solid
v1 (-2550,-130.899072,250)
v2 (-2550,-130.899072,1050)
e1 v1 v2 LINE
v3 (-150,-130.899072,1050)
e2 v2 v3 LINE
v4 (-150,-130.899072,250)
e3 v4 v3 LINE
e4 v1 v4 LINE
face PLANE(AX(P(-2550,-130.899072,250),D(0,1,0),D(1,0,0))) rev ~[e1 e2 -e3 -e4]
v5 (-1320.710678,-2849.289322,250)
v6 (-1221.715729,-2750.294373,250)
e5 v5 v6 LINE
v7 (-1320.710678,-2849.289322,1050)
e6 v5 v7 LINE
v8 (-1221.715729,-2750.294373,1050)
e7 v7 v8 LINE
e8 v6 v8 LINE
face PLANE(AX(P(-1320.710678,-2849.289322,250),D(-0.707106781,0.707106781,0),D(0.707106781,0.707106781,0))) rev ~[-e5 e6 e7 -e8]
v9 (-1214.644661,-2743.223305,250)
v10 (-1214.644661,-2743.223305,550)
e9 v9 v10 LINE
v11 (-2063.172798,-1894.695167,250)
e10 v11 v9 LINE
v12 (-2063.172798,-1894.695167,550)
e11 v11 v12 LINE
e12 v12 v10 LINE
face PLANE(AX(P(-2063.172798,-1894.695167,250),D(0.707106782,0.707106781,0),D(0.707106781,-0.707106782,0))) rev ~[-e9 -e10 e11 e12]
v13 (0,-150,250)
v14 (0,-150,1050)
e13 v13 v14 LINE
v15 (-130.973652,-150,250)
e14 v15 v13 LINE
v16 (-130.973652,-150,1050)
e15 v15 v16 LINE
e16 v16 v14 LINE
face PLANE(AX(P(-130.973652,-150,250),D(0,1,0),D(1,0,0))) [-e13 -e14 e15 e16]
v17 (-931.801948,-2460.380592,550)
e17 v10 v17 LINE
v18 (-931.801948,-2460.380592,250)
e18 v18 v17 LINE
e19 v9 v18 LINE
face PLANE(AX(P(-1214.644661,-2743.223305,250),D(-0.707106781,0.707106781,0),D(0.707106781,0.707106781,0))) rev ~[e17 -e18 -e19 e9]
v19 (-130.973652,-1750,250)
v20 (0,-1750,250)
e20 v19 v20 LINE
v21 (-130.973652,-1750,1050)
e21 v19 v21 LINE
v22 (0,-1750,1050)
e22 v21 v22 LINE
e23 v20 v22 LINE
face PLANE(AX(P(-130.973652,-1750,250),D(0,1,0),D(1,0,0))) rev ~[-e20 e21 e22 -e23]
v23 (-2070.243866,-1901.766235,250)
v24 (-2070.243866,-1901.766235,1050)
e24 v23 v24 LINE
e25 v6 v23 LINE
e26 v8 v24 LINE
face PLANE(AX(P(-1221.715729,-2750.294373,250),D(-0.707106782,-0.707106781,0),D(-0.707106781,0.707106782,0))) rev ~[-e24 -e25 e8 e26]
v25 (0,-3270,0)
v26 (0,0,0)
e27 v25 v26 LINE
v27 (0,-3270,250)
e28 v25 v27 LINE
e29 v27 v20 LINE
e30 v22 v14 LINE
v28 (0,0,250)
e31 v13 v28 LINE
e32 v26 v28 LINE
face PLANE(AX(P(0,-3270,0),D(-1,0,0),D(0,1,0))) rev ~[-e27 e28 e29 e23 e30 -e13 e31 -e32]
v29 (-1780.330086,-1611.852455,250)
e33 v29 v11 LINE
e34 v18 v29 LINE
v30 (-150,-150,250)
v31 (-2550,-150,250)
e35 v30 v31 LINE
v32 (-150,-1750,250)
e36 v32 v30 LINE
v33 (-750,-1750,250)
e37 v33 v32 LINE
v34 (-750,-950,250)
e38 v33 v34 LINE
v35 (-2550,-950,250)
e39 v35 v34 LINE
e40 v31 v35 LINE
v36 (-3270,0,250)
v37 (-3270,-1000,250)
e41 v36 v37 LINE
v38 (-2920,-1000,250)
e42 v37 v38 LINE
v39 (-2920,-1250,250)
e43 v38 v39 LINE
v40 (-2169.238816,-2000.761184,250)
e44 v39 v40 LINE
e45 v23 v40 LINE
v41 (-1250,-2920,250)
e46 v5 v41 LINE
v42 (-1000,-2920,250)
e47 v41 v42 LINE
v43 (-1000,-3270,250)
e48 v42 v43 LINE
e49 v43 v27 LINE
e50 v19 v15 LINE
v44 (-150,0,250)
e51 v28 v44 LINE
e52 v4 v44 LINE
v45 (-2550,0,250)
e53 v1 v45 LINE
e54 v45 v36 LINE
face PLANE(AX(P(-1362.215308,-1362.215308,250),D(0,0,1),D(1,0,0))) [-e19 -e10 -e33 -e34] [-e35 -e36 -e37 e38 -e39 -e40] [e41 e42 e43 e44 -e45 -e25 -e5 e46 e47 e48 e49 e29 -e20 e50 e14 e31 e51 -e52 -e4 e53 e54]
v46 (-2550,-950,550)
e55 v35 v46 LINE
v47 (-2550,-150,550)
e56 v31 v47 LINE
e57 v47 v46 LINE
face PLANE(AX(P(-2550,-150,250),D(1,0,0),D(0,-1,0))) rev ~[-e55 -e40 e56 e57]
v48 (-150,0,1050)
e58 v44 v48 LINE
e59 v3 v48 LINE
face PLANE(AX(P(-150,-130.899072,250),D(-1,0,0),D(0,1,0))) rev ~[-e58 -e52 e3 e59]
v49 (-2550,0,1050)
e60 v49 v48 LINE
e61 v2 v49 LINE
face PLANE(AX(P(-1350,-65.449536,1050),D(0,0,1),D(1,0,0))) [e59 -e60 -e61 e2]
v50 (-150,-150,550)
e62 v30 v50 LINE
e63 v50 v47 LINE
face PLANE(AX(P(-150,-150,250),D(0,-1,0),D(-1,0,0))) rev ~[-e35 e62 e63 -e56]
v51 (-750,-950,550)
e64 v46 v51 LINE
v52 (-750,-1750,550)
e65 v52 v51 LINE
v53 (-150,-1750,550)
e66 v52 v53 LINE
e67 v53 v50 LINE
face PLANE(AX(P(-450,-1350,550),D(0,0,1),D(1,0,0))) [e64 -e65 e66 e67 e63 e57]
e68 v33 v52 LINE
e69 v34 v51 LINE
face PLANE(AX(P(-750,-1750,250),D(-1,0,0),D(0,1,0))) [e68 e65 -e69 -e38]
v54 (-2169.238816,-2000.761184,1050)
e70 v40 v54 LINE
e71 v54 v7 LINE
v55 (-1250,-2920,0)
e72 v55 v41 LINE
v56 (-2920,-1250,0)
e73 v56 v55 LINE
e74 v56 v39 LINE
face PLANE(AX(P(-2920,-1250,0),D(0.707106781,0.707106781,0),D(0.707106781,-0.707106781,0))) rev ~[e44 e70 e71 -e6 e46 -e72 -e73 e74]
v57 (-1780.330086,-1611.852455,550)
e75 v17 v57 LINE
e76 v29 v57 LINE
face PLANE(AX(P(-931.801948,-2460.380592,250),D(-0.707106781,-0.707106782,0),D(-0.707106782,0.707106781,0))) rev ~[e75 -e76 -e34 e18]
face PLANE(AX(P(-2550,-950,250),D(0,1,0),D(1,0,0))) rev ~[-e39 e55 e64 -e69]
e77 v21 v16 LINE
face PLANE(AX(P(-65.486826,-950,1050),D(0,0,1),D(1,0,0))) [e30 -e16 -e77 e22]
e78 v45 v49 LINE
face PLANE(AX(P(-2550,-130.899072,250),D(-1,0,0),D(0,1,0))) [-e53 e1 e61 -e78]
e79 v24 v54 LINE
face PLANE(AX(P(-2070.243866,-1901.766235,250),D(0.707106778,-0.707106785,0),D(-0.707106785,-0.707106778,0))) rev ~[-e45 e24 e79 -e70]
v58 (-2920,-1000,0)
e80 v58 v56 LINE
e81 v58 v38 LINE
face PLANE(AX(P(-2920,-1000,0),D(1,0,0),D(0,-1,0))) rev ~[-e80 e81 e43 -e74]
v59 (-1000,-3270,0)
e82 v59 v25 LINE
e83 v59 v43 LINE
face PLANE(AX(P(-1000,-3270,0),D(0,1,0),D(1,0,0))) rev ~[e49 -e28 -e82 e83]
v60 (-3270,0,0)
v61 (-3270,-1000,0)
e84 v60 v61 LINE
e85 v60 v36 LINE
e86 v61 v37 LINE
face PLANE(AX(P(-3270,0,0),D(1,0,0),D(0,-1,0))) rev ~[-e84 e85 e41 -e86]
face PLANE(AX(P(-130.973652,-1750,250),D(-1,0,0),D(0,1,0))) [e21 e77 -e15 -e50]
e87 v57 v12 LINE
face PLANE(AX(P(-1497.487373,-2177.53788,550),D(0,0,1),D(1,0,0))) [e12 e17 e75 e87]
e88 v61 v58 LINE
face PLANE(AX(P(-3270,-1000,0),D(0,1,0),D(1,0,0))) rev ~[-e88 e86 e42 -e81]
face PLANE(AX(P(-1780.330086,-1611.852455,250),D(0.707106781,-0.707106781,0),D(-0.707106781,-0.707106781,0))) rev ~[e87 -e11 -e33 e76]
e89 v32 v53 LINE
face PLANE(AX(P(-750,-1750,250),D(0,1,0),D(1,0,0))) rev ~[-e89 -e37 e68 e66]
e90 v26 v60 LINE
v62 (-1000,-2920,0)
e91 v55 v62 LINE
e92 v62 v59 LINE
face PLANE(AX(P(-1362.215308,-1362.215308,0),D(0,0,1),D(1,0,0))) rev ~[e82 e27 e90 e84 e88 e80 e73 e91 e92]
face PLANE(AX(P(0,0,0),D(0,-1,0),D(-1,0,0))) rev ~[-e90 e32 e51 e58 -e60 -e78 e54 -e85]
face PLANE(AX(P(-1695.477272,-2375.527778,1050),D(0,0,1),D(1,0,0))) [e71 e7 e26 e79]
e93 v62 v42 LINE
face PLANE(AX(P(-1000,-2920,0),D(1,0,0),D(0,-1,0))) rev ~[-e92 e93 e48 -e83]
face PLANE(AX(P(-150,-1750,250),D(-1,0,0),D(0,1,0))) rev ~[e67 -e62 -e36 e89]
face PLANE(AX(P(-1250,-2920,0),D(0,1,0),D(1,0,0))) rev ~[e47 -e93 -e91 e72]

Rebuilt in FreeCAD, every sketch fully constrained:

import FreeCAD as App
import Part
import Sketcher
Q = App.Units.Quantity


def add_polygon(sketch, points):
    """Adds a closed chain of lines whose ends are joined by coincident constraints."""
    first, n = sketch.GeometryCount, len(points)
    for a, b in zip(points, points[1:] + points[:1]):
        sketch.addGeometry(Part.LineSegment(App.Vector(*a, 0), App.Vector(*b, 0)), False)
    for i in range(n):
        sketch.addConstraint(Sketcher.Constraint("Coincident", first + i, 2, first + (i + 1) % n, 1))

doc = App.newDocument("Part")
body = doc.addObject("PartDesign::Body", "Body")

# Sketch on XY plane
sketch1 = body.newObject("Sketcher::SketchObject", "Sketch")
sketch1.AttachmentSupport = (doc.getObject("XY_Plane"), [""])
sketch1.MapMode = "FlatFace"
add_polygon(sketch1, [(0, -3270), (0, 0), (-3270, 0), (-3270, -1000), (-2920, -1000), (-2920, -1250), (-1250, -2920), (-1000, -2920), (-1000, -3270)])  # lines 0-8
sketch1.addConstraint(Sketcher.Constraint("Vertical", 0))
sketch1.addConstraint(Sketcher.Constraint("Horizontal", 1))
sketch1.addConstraint(Sketcher.Constraint("Vertical", 2))
sketch1.addConstraint(Sketcher.Constraint("Horizontal", 3))
sketch1.addConstraint(Sketcher.Constraint("Vertical", 4))
sketch1.addConstraint(Sketcher.Constraint("Horizontal", 6))
sketch1.addConstraint(Sketcher.Constraint("Vertical", 7))
sketch1.addConstraint(Sketcher.Constraint("Horizontal", 8))
sketch1.addConstraint(Sketcher.Constraint("Coincident", 0, 2, -1, 1))
sketch1.addConstraint(Sketcher.Constraint("Equal", 1, 0))
sketch1.addConstraint(Sketcher.Constraint("Equal", 8, 2))
sketch1.addConstraint(Sketcher.Constraint("Equal", 6, 4))
sketch1.addConstraint(Sketcher.Constraint("Equal", 3, 7))
sketch1.addConstraint(Sketcher.Constraint("DistanceX", 1, 2, 1, 1, Q("3270 mm")))
sketch1.addConstraint(Sketcher.Constraint("DistanceX", 3, 1, 3, 2, Q("350 mm")))
sketch1.addConstraint(Sketcher.Constraint("DistanceX", 6, 1, 6, 2, Q("250 mm")))
sketch1.addConstraint(Sketcher.Constraint("DistanceX", 8, 1, 8, 2, Q("1000 mm")))
pad1 = body.newObject("PartDesign::Pad", "Pad")
pad1.Profile = sketch1
pad1.Length = 250

# Sketch on XY plane
sketch2 = body.newObject("Sketcher::SketchObject", "Sketch001")
sketch2.AttachmentSupport = (doc.getObject("XY_Plane"), [""])
sketch2.MapMode = "FlatFace"
sketch2.AttachmentOffset = App.Placement(App.Vector(0, 0, 250), App.Rotation())
add_polygon(sketch2, [(-932, -2460), (-1780, -1612), (-2063, -1895), (-1215, -2743)])  # lines 0-3
add_polygon(sketch2, [(-750, -950), (-750, -1750), (-150, -1750), (-150, -150), (-2550, -150), (-2550, -950)])  # lines 4-9
sketch2.addConstraint(Sketcher.Constraint("Vertical", 4))
sketch2.addConstraint(Sketcher.Constraint("Horizontal", 5))
sketch2.addConstraint(Sketcher.Constraint("Vertical", 6))
sketch2.addConstraint(Sketcher.Constraint("Horizontal", 7))
sketch2.addConstraint(Sketcher.Constraint("Vertical", 8))
sketch2.addConstraint(Sketcher.Constraint("Horizontal", 9))
sketch2.addConstraint(Sketcher.Constraint("Perpendicular", 0, 1))
sketch2.addConstraint(Sketcher.Constraint("Perpendicular", 1, 2))
sketch2.addConstraint(Sketcher.Constraint("Perpendicular", 2, 3))
sketch2.addConstraint(Sketcher.Constraint("Equal", 4, 8))
sketch2.addConstraint(Sketcher.Constraint("DistanceX", 5, 1, 5, 2, Q("600 mm")))
sketch2.addConstraint(Sketcher.Constraint("DistanceX", 7, 2, 7, 1, Q("2400 mm")))
sketch2.addConstraint(Sketcher.Constraint("DistanceY", 4, 2, 4, 1, Q("800 mm")))
sketch2.addConstraint(Sketcher.Constraint("Angle", 0, Q("135 deg")))
sketch2.addConstraint(Sketcher.Constraint("Distance", 0, Q("1200 mm")))
sketch2.addConstraint(Sketcher.Constraint("Distance", 1, Q("399.999999 mm")))
sketch2.addConstraint(Sketcher.Constraint("DistanceX", 4, 2, -1, 1, Q("750 mm")))
sketch2.addConstraint(Sketcher.Constraint("DistanceY", 4, 2, -1, 1, Q("1750 mm")))
sketch2.addConstraint(Sketcher.Constraint("DistanceX", 1, 2, -1, 1, Q("2063.172798 mm")))
sketch2.addConstraint(Sketcher.Constraint("DistanceY", 3, 2, -1, 1, Q("2460.380592 mm")))
pad2 = body.newObject("PartDesign::Pad", "Pad001")
pad2.Profile = sketch2
pad2.Length = 300

# Sketch on XY plane
sketch3 = body.newObject("Sketcher::SketchObject", "Sketch002")
sketch3.AttachmentSupport = (doc.getObject("XY_Plane"), [""])
sketch3.MapMode = "FlatFace"
sketch3.AttachmentOffset = App.Placement(App.Vector(0, 0, 250), App.Rotation())
add_polygon(sketch3, [(-2550, 0), (-2550, -131), (-150, -131), (-150, 0)])  # lines 0-3
add_polygon(sketch3, [(-131, -150), (-131, -1750), (0, -1750), (0, -150)])  # lines 4-7
add_polygon(sketch3, [(-1222, -2750), (-2070, -1902), (-2169, -2001), (-1321, -2849)])  # lines 8-11
sketch3.addConstraint(Sketcher.Constraint("Vertical", 0))
sketch3.addConstraint(Sketcher.Constraint("Horizontal", 1))
sketch3.addConstraint(Sketcher.Constraint("Vertical", 2))
sketch3.addConstraint(Sketcher.Constraint("Horizontal", 3))
sketch3.addConstraint(Sketcher.Constraint("Vertical", 4))
sketch3.addConstraint(Sketcher.Constraint("Horizontal", 5))
sketch3.addConstraint(Sketcher.Constraint("Vertical", 6))
sketch3.addConstraint(Sketcher.Constraint("Horizontal", 7))
sketch3.addConstraint(Sketcher.Constraint("PointOnObject", 2, 2, -1))
sketch3.addConstraint(Sketcher.Constraint("PointOnObject", 5, 2, -2))
sketch3.addConstraint(Sketcher.Constraint("Perpendicular", 8, 9))
sketch3.addConstraint(Sketcher.Constraint("Perpendicular", 9, 10))
sketch3.addConstraint(Sketcher.Constraint("Perpendicular", 10, 11))
sketch3.addConstraint(Sketcher.Constraint("DistanceX", 1, 1, 1, 2, Q("2400 mm")))
sketch3.addConstraint(Sketcher.Constraint("DistanceY", 4, 2, 4, 1, Q("1600 mm")))
sketch3.addConstraint(Sketcher.Constraint("Angle", 8, Q("135 deg")))
sketch3.addConstraint(Sketcher.Constraint("Distance", 8, Q("1200 mm")))
sketch3.addConstraint(Sketcher.Constraint("Distance", 9, Q("140 mm")))
sketch3.addConstraint(Sketcher.Constraint("DistanceX", 0, 2, -1, 1, Q("2550 mm")))
sketch3.addConstraint(Sketcher.Constraint("DistanceY", 4, 2, -1, 1, Q("1750 mm")))
sketch3.addConstraint(Sketcher.Constraint("DistanceX", 5, 1, 5, 2, Q("130.973652 mm")))
sketch3.addConstraint(Sketcher.Constraint("DistanceY", 0, 2, 0, 1, Q("130.899072 mm")))
sketch3.addConstraint(Sketcher.Constraint("DistanceX", 10, 2, -1, 1, Q("1320.710678 mm")))
sketch3.addConstraint(Sketcher.Constraint("DistanceY", 9, 2, 0, 2, Q("1869.862112 mm")))
pad3 = body.newObject("PartDesign::Pad", "Pad002")
pad3.Profile = sketch3
pad3.Length = 800

# Sketch on XY plane
sketch4 = body.newObject("Sketcher::SketchObject", "Sketch003")
sketch4.AttachmentSupport = (doc.getObject("XY_Plane"), [""])
sketch4.MapMode = "FlatFace"
sketch4.AttachmentOffset = App.Placement(App.Vector(0, 0, 250), App.Rotation())
add_polygon(sketch4, [(-2550, 0), (-2550, -131), (-150, -131), (-150, 0)])  # lines 0-3
add_polygon(sketch4, [(-131, -150), (-131, -1750), (0, -1750), (0, -150)])  # lines 4-7
add_polygon(sketch4, [(-1222, -2750), (-2070, -1902), (-2169, -2001), (-1321, -2849)])  # lines 8-11
sketch4.addConstraint(Sketcher.Constraint("Vertical", 0))
sketch4.addConstraint(Sketcher.Constraint("Horizontal", 1))
sketch4.addConstraint(Sketcher.Constraint("Vertical", 2))
sketch4.addConstraint(Sketcher.Constraint("Horizontal", 3))
sketch4.addConstraint(Sketcher.Constraint("Vertical", 4))
sketch4.addConstraint(Sketcher.Constraint("Horizontal", 5))
sketch4.addConstraint(Sketcher.Constraint("Vertical", 6))
sketch4.addConstraint(Sketcher.Constraint("Horizontal", 7))
sketch4.addConstraint(Sketcher.Constraint("PointOnObject", 2, 2, -1))
sketch4.addConstraint(Sketcher.Constraint("PointOnObject", 5, 2, -2))
sketch4.addConstraint(Sketcher.Constraint("Perpendicular", 8, 9))
sketch4.addConstraint(Sketcher.Constraint("Perpendicular", 9, 10))
sketch4.addConstraint(Sketcher.Constraint("Perpendicular", 10, 11))
sketch4.addConstraint(Sketcher.Constraint("DistanceX", 1, 1, 1, 2, Q("2400 mm")))
sketch4.addConstraint(Sketcher.Constraint("DistanceY", 4, 2, 4, 1, Q("1600 mm")))
sketch4.addConstraint(Sketcher.Constraint("Angle", 8, Q("135 deg")))
sketch4.addConstraint(Sketcher.Constraint("Distance", 8, Q("1200 mm")))
sketch4.addConstraint(Sketcher.Constraint("Distance", 9, Q("140 mm")))
sketch4.addConstraint(Sketcher.Constraint("DistanceX", 0, 2, -1, 1, Q("2550 mm")))
sketch4.addConstraint(Sketcher.Constraint("DistanceY", 4, 2, -1, 1, Q("1750 mm")))
sketch4.addConstraint(Sketcher.Constraint("DistanceX", 5, 1, 5, 2, Q("130.973652 mm")))
sketch4.addConstraint(Sketcher.Constraint("DistanceY", 0, 2, 0, 1, Q("130.899072 mm")))
sketch4.addConstraint(Sketcher.Constraint("DistanceX", 10, 2, -1, 1, Q("1320.710678 mm")))
sketch4.addConstraint(Sketcher.Constraint("DistanceY", 9, 2, 0, 2, Q("1869.862112 mm")))
pad4 = body.newObject("PartDesign::Pad", "Pad003")
pad4.Profile = sketch4
pad4.Length = 800

doc.recompute()
